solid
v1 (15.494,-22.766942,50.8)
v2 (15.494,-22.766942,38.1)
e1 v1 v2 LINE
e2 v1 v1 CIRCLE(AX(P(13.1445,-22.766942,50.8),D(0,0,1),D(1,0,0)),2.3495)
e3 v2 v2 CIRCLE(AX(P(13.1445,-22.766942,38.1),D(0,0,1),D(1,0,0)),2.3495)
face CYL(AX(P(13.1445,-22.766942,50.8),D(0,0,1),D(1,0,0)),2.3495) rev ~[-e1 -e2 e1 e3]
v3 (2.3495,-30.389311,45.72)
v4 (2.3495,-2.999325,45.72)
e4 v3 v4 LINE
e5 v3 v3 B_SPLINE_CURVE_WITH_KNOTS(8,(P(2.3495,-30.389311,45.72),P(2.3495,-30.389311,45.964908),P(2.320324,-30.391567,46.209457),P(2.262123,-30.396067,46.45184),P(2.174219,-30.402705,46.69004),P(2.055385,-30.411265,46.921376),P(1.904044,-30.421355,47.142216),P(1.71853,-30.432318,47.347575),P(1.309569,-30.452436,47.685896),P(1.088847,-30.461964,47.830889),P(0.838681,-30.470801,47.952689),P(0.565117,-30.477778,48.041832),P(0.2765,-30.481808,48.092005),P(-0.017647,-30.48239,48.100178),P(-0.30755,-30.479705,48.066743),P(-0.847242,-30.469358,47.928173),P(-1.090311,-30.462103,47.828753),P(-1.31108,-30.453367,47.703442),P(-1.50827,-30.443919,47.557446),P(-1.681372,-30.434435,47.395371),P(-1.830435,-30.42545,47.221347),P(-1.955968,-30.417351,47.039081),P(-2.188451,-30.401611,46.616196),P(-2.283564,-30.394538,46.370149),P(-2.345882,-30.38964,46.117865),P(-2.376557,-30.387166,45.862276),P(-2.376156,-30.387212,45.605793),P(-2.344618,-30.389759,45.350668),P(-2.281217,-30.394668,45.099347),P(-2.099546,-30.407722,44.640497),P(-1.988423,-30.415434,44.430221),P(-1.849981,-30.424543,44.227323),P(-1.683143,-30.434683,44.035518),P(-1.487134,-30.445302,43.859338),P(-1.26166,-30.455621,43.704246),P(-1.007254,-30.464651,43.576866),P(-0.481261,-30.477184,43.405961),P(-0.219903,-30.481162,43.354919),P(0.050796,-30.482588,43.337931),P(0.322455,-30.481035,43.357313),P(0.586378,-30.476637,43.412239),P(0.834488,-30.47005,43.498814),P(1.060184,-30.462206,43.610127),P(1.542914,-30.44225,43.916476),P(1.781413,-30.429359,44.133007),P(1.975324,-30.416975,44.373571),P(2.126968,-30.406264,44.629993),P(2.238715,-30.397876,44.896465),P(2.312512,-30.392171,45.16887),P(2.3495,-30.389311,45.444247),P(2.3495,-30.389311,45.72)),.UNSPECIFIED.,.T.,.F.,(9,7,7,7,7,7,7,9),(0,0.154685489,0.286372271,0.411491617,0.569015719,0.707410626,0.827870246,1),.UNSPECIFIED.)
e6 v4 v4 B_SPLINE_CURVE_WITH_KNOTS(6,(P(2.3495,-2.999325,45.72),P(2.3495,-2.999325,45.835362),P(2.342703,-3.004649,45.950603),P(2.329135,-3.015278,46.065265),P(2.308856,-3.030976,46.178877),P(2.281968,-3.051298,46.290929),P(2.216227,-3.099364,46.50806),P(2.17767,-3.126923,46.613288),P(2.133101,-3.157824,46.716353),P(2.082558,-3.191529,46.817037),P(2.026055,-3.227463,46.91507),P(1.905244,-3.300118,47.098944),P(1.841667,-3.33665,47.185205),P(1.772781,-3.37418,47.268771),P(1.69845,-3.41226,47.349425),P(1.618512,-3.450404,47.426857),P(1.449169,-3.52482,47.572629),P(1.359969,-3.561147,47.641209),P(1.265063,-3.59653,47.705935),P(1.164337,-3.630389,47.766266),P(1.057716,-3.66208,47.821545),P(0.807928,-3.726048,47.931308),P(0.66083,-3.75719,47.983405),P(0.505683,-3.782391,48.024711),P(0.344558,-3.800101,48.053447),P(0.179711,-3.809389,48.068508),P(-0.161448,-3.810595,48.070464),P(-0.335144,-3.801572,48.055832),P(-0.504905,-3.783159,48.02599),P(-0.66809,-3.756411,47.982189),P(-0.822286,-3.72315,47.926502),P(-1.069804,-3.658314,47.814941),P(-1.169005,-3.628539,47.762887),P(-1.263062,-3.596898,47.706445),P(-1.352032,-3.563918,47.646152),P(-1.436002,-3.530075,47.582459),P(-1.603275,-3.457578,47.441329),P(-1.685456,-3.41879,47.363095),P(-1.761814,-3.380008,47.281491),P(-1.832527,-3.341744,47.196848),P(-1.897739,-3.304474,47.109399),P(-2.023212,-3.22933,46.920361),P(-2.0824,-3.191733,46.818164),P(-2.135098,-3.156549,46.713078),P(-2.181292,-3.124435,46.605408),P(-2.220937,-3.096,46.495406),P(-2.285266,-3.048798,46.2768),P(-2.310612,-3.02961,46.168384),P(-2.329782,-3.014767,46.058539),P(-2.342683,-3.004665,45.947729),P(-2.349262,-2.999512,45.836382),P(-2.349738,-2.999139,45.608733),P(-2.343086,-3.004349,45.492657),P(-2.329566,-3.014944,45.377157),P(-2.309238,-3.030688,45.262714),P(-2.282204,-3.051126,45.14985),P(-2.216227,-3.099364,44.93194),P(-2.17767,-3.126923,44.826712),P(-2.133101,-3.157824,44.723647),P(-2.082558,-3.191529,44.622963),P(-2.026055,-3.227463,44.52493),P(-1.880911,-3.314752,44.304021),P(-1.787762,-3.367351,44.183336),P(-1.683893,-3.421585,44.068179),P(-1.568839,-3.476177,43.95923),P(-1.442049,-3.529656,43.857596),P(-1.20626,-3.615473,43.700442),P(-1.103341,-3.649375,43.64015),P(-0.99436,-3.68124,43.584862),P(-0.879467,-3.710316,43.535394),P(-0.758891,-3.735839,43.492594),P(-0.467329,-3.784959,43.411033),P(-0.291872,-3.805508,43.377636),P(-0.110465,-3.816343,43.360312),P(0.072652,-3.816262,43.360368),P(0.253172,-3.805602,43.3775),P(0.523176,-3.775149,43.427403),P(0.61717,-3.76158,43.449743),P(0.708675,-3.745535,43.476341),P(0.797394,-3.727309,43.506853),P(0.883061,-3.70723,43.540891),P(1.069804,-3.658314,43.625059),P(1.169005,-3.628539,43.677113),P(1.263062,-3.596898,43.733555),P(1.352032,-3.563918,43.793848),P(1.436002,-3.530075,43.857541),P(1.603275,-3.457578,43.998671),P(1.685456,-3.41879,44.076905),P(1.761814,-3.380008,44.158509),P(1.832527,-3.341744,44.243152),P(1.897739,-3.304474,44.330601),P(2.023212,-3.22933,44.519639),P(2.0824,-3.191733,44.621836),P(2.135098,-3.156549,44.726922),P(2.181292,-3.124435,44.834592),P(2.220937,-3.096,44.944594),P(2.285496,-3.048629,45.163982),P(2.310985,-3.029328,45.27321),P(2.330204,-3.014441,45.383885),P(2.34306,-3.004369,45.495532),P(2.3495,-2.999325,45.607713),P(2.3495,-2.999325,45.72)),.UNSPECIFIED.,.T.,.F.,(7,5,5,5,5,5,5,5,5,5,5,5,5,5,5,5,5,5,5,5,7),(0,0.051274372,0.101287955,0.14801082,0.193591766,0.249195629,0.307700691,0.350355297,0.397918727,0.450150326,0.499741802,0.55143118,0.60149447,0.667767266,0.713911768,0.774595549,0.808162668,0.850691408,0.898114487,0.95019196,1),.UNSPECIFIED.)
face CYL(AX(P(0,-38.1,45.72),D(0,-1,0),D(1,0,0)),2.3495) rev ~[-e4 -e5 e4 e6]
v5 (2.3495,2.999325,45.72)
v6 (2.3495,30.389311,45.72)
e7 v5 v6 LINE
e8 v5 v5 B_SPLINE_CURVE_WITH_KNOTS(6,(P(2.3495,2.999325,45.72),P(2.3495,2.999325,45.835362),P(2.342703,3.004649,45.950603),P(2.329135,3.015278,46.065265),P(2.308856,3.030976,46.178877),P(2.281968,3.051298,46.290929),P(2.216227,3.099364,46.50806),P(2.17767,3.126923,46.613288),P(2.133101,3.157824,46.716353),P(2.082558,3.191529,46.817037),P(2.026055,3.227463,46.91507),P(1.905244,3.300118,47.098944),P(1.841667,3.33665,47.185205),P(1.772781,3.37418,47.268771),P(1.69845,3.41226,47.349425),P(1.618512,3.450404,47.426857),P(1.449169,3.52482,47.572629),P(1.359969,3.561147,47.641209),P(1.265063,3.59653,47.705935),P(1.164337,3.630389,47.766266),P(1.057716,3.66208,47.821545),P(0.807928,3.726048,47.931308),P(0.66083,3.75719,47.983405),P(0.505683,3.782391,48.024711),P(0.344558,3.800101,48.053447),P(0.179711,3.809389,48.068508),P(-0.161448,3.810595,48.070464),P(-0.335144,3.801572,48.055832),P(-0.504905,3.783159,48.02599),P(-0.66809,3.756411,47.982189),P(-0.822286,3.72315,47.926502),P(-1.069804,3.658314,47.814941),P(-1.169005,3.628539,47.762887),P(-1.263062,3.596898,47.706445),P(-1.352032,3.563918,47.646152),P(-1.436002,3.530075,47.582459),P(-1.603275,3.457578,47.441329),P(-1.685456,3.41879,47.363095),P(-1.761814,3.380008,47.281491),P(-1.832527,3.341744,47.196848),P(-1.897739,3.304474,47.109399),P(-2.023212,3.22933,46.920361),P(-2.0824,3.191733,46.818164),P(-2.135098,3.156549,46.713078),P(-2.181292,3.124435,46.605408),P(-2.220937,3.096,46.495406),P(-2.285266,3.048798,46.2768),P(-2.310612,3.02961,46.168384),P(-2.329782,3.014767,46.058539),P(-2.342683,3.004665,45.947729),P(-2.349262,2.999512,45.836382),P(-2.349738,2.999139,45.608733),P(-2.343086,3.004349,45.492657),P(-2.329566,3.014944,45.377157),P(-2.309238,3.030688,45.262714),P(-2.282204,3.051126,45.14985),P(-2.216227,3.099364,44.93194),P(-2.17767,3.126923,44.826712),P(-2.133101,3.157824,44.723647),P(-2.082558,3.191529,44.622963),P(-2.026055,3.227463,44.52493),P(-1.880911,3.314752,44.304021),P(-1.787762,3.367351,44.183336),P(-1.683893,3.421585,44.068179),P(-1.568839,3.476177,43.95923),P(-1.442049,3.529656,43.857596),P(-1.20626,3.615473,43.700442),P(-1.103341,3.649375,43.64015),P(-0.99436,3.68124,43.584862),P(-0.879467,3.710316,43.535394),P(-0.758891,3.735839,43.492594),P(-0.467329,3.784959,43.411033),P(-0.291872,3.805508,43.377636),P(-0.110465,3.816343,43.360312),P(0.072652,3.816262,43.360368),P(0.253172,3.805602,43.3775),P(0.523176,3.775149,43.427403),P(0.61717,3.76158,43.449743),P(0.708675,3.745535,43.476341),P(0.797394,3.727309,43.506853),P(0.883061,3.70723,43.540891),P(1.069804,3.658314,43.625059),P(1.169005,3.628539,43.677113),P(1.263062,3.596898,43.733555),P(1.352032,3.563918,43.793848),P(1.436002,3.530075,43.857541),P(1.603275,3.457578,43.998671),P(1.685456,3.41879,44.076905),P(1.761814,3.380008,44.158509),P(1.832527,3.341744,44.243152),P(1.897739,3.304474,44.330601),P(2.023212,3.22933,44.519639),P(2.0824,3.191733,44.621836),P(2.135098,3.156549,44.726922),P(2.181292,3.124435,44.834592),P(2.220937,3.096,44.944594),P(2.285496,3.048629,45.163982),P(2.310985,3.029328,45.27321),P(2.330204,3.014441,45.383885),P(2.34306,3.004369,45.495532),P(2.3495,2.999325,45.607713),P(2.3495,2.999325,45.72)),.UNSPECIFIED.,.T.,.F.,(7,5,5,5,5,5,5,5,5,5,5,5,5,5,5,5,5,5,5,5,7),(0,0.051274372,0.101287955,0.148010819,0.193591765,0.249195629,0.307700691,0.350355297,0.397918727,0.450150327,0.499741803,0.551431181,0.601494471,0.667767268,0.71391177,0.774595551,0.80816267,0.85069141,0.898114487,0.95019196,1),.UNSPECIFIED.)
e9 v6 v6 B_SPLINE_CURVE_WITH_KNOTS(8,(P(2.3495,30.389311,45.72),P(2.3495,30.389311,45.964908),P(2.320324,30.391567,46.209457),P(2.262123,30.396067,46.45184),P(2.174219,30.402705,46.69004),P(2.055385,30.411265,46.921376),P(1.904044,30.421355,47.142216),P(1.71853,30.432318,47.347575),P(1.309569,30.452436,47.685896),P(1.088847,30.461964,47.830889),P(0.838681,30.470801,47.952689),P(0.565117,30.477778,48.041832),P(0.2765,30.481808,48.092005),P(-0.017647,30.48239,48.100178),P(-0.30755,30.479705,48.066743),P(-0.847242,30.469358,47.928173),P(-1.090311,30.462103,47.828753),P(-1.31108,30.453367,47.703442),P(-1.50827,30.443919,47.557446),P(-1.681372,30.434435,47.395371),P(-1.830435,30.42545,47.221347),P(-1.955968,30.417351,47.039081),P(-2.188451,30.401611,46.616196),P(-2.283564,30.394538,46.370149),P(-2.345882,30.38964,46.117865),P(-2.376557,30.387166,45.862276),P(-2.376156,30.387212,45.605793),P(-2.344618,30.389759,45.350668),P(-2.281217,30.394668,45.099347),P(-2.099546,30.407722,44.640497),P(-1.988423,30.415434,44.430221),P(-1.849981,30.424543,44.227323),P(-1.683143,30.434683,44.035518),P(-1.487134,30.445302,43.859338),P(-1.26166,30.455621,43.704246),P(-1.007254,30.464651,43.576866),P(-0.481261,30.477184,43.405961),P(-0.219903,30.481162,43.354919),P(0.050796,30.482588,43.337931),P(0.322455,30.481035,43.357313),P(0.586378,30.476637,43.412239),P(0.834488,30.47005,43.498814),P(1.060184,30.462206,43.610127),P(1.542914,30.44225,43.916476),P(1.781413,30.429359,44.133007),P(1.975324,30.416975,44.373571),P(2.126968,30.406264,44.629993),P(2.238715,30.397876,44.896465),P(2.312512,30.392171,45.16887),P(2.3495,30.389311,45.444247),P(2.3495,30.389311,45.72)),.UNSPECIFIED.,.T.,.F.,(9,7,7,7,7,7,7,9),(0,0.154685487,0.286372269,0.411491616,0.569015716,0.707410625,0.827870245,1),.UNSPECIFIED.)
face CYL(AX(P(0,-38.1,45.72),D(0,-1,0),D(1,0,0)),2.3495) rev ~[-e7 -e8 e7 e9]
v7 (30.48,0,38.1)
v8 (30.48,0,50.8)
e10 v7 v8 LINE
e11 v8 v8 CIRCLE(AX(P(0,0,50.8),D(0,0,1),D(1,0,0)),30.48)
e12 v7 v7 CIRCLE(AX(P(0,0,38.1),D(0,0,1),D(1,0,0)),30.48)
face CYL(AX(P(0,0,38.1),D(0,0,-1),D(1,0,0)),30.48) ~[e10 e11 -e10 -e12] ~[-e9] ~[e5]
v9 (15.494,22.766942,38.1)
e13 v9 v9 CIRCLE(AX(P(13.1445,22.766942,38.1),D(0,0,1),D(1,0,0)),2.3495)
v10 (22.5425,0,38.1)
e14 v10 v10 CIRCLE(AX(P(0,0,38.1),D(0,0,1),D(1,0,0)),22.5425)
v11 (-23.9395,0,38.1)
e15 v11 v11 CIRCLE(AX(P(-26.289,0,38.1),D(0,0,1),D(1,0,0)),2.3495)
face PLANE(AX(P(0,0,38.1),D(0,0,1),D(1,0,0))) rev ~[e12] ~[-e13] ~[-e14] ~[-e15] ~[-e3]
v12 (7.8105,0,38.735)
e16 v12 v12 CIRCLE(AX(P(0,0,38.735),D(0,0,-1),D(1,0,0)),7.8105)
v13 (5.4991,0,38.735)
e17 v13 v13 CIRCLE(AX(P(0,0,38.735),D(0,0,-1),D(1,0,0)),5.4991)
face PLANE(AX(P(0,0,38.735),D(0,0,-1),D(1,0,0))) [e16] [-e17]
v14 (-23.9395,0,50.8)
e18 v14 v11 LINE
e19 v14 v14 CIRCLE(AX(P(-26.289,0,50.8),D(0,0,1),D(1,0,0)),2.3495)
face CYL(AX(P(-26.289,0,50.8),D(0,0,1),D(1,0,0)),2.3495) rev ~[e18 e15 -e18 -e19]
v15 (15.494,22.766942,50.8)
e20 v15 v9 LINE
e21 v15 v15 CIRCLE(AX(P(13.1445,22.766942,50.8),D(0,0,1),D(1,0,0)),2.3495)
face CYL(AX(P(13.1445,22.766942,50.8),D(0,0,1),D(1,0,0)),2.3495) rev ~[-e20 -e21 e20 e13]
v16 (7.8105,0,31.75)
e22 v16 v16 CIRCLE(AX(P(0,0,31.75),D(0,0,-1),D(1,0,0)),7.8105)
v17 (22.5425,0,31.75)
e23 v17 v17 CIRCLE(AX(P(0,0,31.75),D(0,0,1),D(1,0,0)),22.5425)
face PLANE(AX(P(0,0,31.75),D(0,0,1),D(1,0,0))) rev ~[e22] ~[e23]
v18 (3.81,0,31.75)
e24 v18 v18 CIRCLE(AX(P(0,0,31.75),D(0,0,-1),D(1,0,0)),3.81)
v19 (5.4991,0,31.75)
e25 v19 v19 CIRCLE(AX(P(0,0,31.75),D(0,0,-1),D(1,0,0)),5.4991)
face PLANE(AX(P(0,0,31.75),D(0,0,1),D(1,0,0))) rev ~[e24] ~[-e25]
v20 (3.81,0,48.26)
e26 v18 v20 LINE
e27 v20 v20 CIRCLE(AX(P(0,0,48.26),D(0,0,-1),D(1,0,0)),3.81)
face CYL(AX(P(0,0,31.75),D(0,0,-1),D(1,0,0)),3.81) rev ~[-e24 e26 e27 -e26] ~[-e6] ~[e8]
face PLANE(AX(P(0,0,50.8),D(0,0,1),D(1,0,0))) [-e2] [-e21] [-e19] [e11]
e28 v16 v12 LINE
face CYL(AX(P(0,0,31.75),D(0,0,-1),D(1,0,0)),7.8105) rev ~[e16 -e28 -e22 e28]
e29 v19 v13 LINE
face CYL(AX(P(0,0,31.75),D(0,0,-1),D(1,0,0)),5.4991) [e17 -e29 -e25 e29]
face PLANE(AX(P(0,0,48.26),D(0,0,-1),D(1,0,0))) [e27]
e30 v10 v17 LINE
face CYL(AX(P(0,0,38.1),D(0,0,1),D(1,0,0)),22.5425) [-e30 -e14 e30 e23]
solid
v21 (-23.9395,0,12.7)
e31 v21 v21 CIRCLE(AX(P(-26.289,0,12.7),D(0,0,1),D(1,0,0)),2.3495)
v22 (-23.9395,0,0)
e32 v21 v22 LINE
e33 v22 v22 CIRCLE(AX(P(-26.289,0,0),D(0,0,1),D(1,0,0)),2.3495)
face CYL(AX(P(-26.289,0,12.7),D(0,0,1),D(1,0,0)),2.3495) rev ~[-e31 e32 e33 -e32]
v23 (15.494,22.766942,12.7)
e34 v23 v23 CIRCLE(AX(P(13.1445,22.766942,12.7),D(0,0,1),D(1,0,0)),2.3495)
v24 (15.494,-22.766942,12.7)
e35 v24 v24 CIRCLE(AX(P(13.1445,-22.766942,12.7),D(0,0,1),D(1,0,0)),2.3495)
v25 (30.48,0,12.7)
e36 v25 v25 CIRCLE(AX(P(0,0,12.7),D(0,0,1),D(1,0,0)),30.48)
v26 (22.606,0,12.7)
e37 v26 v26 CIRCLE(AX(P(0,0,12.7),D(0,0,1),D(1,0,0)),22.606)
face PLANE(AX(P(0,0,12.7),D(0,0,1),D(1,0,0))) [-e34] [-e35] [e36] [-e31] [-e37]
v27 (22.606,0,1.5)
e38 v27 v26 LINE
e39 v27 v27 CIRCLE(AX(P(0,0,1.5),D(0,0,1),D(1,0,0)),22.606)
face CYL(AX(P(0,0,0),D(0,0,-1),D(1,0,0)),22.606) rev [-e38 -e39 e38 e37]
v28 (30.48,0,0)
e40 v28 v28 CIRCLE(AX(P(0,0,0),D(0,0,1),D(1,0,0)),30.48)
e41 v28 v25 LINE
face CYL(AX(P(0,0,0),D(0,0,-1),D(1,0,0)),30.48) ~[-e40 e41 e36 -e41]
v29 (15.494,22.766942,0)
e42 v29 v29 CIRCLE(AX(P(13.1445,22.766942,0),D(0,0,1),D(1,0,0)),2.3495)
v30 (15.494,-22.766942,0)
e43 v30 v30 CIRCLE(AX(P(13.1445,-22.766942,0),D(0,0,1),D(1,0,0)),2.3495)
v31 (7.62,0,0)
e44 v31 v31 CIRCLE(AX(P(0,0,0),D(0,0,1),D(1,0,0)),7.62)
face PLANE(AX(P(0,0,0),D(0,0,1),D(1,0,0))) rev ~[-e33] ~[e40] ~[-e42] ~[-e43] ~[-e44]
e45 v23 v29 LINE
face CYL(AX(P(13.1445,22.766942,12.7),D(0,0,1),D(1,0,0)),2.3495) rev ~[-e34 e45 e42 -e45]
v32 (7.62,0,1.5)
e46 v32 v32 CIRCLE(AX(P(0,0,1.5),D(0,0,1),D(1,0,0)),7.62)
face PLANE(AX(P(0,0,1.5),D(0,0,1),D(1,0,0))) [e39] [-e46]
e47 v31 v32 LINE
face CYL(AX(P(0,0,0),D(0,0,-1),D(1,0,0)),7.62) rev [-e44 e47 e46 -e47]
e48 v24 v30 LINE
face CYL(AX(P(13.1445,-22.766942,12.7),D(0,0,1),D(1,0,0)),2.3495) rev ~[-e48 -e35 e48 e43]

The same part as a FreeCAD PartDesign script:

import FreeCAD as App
import Part
import Sketcher

V = App.Vector
Q = App.Units.Quantity

doc = App.newDocument("Part")
body = doc.addObject("PartDesign::Body", "Body")

# Sketch on XY plane
sketch1 = doc.addObject("Sketcher::SketchObject", "Sketch")
body.addObject(sketch1)
sketch1.AttachmentSupport = (doc.XY_Plane, [""])
sketch1.MapMode = "FlatFace"
sketch1.addGeometry([
    Part.Circle(V(0, 0, 0), V(0, 0, 1), 22.606),
    Part.Circle(V(0, 0, 0), V(0, 0, 1), 7.62),
], False)
sketch1.addConstraint([
    Sketcher.Constraint("Coincident", 0, 3, -1, 1),
    Sketcher.Constraint("Coincident", 1, 3, -1, 1),
    Sketcher.Constraint("Diameter", 1, Q("0.6 in")),
    Sketcher.Constraint("Diameter", 0, Q("1.78 in")),
])
pad1 = doc.addObject("PartDesign::Pad", "Pad")
body.addObject(pad1)
pad1.Profile = sketch1
pad1.Length = 1.5

# Sketch on XY plane
sketch2 = doc.addObject("Sketcher::SketchObject", "Sketch001")
body.addObject(sketch2)
sketch2.AttachmentSupport = (doc.XY_Plane, [""])
sketch2.MapMode = "FlatFace"
sketch2.addGeometry([
    Part.Circle(V(0, 0, 0), V(0, 0, 1), 30.48),
    Part.Circle(V(0, 0, 0), V(0, 0, 1), 22.606),
], False)
sketch2.addConstraint([
    Sketcher.Constraint("Coincident", 0, 3, -1, 1),
    Sketcher.Constraint("Coincident", 1, 3, -1, 1),
    Sketcher.Constraint("Diameter", 0, Q("2.4 in")),
    Sketcher.Constraint("Diameter", 1, Q("1.78 in")),
])
pad2 = doc.addObject("PartDesign::Pad", "Pad001")
body.addObject(pad2)
pad2.Profile = sketch2
pad2.Length = Q("0.5 in")

# Sketch on XY plane
sketch3 = doc.addObject("Sketcher::SketchObject", "Sketch002")
body.addObject(sketch3)
sketch3.AttachmentSupport = (doc.XY_Plane, [""])
sketch3.MapMode = "FlatFace"
sketch3.AttachmentOffset = App.Placement(V(0, 0, 0.5 * 25.4), App.Rotation())
sketch3.addGeometry([
    Part.Circle(V(-26.289, 0, 0), V(0, 0, 1), 2.3495),
    Part.Circle(V(13.1445, 22.766942, 0), V(0, 0, 1), 2.3495),
    Part.Circle(V(13.1445, -22.766942, 0), V(0, 0, 1), 2.3495),
], False)
sketch3.addConstraint([
    Sketcher.Constraint("Equal", 0, 1),
    Sketcher.Constraint("Equal", 1, 2),
    Sketcher.Constraint("Symmetric", 1, 3, 2, 3, -1),
    Sketcher.Constraint("PointOnObject", 0, 3, -1),
    Sketcher.Constraint("Diameter", 0, Q("0.185 in")),
    Sketcher.Constraint("DistanceX", 0, 3, -1, 1, Q("1.035 in")),
    Sketcher.Constraint("DistanceX", -1, 1, 1, 3, Q("0.5175 in")),
    Sketcher.Constraint("DistanceY", -1, 1, 1, 3, Q("22.766942 mm")),
])
pocket1 = doc.addObject("PartDesign::Pocket", "Pocket")
body.addObject(pocket1)
pocket1.Profile = sketch3
pocket1.Type = "ThroughAll"
body2 = doc.addObject("PartDesign::Body", "Body001")

# Sketch on XY plane
sketch4 = doc.addObject("Sketcher::SketchObject", "Sketch003")
body2.addObject(sketch4)
sketch4.AttachmentSupport = (doc.getObject("XY_Plane001"), [""])
sketch4.MapMode = "FlatFace"
sketch4.AttachmentOffset = App.Placement(V(0, 0, 1.5 * 25.4), App.Rotation())
sketch4.addGeometry(Part.Circle(V(0, 0, 0), V(0, 0, 1), 22.5425), False)
sketch4.addConstraint([
    Sketcher.Constraint("Coincident", 0, 3, -1, 1),
    Sketcher.Constraint("Diameter", 0, Q("1.775 in")),
])
pad3 = doc.addObject("PartDesign::Pad", "Pad002")
body2.addObject(pad3)
pad3.Profile = sketch4
pad3.Length = Q("0.25 in")
pad3.Reversed = True

# Sketch on XY plane
sketch5 = doc.addObject("Sketcher::SketchObject", "Sketch004")
body2.addObject(sketch5)
sketch5.AttachmentSupport = (doc.getObject("XY_Plane001"), [""])
sketch5.MapMode = "FlatFace"
sketch5.AttachmentOffset = App.Placement(V(0, 0, 1.5 * 25.4), App.Rotation())
sketch5.addGeometry(Part.Circle(V(0, 0, 0), V(0, 0, 1), 30.48), False)
sketch5.addConstraint([
    Sketcher.Constraint("Coincident", 0, 3, -1, 1),
    Sketcher.Constraint("Diameter", 0, Q("2.4 in")),
])
pad4 = doc.addObject("PartDesign::Pad", "Pad003")
body2.addObject(pad4)
pad4.Profile = sketch5
pad4.Length = Q("0.5 in")

# Sketch on XY plane
sketch6 = doc.addObject("Sketcher::SketchObject", "Sketch005")
body2.addObject(sketch6)
sketch6.AttachmentSupport = (doc.getObject("XY_Plane001"), [""])
sketch6.MapMode = "FlatFace"
sketch6.AttachmentOffset = App.Placement(V(0, 0, 2 * 25.4), App.Rotation())
sketch6.addGeometry([
    Part.Circle(V(13.1445, 22.766942, 0), V(0, 0, 1), 2.3495),
    Part.Circle(V(-26.289, 0, 0), V(0, 0, 1), 2.3495),
    Part.Circle(V(13.1445, -22.766942, 0), V(0, 0, 1), 2.3495),
], False)
sketch6.addConstraint([
    Sketcher.Constraint("Equal", 0, 1),
    Sketcher.Constraint("Equal", 1, 2),
    Sketcher.Constraint("Symmetric", 0, 3, 2, 3, -1),
    Sketcher.Constraint("PointOnObject", 1, 3, -1),
    Sketcher.Constraint("Diameter", 0, Q("0.185 in")),
    Sketcher.Constraint("DistanceX", 1, 3, -1, 1, Q("1.035 in")),
    Sketcher.Constraint("DistanceX", -1, 1, 0, 3, Q("0.5175 in")),
    Sketcher.Constraint("DistanceY", -1, 1, 0, 3, Q("22.766942 mm")),
])
pocket2 = doc.addObject("PartDesign::Pocket", "Pocket001")
body2.addObject(pocket2)
pocket2.Profile = sketch6
pocket2.Type = "ThroughAll"

# Sketch on XY plane
sketch7 = doc.addObject("Sketcher::SketchObject", "Sketch006")
body2.addObject(sketch7)
sketch7.AttachmentSupport = (doc.getObject("XY_Plane001"), [""])
sketch7.MapMode = "FlatFace"
sketch7.AttachmentOffset = App.Placement(V(0, 0, 1.25 * 25.4), App.Rotation())
sketch7.addGeometry([
    Part.Circle(V(0, 0, 0), V(0, 0, 1), 7.8105),
    Part.Circle(V(0, 0, 0), V(0, 0, 1), 5.4991),
], False)
sketch7.addConstraint([
    Sketcher.Constraint("Coincident", 0, 3, -1, 1),
    Sketcher.Constraint("Coincident", 1, 3, -1, 1),
    Sketcher.Constraint("Diameter", 0, Q("0.615 in")),
    Sketcher.Constraint("Diameter", 1, Q("0.433 in")),
])
pocket3 = doc.addObject("PartDesign::Pocket", "Pocket002")
body2.addObject(pocket3)
pocket3.Profile = sketch7
pocket3.Length = Q("0.275 in")
pocket3.Reversed = True

# Sketch on XY plane
sketch8 = doc.addObject("Sketcher::SketchObject", "Sketch007")
body2.addObject(sketch8)
sketch8.AttachmentSupport = (doc.getObject("XY_Plane001"), [""])
sketch8.MapMode = "FlatFace"
sketch8.AttachmentOffset = App.Placement(V(0, 0, 1.25 * 25.4), App.Rotation())
sketch8.addGeometry(Part.Circle(V(0, 0, 0), V(0, 0, 1), 3.81), False)
sketch8.addConstraint([
    Sketcher.Constraint("Coincident", 0, 3, -1, 1),
    Sketcher.Constraint("Diameter", 0, Q("0.3 in")),
])
pocket4 = doc.addObject("PartDesign::Pocket", "Pocket003")
body2.addObject(pocket4)
pocket4.Profile = sketch8
pocket4.Length = Q("0.65 in")
pocket4.Reversed = True

# Sketch on XZ plane
sketch9 = doc.addObject("Sketcher::SketchObject", "Sketch008")
body2.addObject(sketch9)
sketch9.AttachmentSupport = (doc.getObject("XZ_Plane001"), [""])
sketch9.MapMode = "FlatFace"
sketch9.AttachmentOffset = App.Placement(V(0, 0, 1.5 * 25.4), App.Rotation())
sketch9.addGeometry(Part.Circle(V(0, 45.72, 0), V(0, 0, 1), 2.3495), False)
sketch9.addConstraint([
    Sketcher.Constraint("PointOnObject", 0, 3, -2),
    Sketcher.Constraint("Diameter", 0, Q("0.185 in")),
    Sketcher.Constraint("DistanceY", -1, 1, 0, 3, Q("1.8 in")),
])
pocket5 = doc.addObject("PartDesign::Pocket", "Pocket004")
body2.addObject(pocket5)
pocket5.Profile = sketch9
pocket5.Type = "ThroughAll"

doc.recompute()
